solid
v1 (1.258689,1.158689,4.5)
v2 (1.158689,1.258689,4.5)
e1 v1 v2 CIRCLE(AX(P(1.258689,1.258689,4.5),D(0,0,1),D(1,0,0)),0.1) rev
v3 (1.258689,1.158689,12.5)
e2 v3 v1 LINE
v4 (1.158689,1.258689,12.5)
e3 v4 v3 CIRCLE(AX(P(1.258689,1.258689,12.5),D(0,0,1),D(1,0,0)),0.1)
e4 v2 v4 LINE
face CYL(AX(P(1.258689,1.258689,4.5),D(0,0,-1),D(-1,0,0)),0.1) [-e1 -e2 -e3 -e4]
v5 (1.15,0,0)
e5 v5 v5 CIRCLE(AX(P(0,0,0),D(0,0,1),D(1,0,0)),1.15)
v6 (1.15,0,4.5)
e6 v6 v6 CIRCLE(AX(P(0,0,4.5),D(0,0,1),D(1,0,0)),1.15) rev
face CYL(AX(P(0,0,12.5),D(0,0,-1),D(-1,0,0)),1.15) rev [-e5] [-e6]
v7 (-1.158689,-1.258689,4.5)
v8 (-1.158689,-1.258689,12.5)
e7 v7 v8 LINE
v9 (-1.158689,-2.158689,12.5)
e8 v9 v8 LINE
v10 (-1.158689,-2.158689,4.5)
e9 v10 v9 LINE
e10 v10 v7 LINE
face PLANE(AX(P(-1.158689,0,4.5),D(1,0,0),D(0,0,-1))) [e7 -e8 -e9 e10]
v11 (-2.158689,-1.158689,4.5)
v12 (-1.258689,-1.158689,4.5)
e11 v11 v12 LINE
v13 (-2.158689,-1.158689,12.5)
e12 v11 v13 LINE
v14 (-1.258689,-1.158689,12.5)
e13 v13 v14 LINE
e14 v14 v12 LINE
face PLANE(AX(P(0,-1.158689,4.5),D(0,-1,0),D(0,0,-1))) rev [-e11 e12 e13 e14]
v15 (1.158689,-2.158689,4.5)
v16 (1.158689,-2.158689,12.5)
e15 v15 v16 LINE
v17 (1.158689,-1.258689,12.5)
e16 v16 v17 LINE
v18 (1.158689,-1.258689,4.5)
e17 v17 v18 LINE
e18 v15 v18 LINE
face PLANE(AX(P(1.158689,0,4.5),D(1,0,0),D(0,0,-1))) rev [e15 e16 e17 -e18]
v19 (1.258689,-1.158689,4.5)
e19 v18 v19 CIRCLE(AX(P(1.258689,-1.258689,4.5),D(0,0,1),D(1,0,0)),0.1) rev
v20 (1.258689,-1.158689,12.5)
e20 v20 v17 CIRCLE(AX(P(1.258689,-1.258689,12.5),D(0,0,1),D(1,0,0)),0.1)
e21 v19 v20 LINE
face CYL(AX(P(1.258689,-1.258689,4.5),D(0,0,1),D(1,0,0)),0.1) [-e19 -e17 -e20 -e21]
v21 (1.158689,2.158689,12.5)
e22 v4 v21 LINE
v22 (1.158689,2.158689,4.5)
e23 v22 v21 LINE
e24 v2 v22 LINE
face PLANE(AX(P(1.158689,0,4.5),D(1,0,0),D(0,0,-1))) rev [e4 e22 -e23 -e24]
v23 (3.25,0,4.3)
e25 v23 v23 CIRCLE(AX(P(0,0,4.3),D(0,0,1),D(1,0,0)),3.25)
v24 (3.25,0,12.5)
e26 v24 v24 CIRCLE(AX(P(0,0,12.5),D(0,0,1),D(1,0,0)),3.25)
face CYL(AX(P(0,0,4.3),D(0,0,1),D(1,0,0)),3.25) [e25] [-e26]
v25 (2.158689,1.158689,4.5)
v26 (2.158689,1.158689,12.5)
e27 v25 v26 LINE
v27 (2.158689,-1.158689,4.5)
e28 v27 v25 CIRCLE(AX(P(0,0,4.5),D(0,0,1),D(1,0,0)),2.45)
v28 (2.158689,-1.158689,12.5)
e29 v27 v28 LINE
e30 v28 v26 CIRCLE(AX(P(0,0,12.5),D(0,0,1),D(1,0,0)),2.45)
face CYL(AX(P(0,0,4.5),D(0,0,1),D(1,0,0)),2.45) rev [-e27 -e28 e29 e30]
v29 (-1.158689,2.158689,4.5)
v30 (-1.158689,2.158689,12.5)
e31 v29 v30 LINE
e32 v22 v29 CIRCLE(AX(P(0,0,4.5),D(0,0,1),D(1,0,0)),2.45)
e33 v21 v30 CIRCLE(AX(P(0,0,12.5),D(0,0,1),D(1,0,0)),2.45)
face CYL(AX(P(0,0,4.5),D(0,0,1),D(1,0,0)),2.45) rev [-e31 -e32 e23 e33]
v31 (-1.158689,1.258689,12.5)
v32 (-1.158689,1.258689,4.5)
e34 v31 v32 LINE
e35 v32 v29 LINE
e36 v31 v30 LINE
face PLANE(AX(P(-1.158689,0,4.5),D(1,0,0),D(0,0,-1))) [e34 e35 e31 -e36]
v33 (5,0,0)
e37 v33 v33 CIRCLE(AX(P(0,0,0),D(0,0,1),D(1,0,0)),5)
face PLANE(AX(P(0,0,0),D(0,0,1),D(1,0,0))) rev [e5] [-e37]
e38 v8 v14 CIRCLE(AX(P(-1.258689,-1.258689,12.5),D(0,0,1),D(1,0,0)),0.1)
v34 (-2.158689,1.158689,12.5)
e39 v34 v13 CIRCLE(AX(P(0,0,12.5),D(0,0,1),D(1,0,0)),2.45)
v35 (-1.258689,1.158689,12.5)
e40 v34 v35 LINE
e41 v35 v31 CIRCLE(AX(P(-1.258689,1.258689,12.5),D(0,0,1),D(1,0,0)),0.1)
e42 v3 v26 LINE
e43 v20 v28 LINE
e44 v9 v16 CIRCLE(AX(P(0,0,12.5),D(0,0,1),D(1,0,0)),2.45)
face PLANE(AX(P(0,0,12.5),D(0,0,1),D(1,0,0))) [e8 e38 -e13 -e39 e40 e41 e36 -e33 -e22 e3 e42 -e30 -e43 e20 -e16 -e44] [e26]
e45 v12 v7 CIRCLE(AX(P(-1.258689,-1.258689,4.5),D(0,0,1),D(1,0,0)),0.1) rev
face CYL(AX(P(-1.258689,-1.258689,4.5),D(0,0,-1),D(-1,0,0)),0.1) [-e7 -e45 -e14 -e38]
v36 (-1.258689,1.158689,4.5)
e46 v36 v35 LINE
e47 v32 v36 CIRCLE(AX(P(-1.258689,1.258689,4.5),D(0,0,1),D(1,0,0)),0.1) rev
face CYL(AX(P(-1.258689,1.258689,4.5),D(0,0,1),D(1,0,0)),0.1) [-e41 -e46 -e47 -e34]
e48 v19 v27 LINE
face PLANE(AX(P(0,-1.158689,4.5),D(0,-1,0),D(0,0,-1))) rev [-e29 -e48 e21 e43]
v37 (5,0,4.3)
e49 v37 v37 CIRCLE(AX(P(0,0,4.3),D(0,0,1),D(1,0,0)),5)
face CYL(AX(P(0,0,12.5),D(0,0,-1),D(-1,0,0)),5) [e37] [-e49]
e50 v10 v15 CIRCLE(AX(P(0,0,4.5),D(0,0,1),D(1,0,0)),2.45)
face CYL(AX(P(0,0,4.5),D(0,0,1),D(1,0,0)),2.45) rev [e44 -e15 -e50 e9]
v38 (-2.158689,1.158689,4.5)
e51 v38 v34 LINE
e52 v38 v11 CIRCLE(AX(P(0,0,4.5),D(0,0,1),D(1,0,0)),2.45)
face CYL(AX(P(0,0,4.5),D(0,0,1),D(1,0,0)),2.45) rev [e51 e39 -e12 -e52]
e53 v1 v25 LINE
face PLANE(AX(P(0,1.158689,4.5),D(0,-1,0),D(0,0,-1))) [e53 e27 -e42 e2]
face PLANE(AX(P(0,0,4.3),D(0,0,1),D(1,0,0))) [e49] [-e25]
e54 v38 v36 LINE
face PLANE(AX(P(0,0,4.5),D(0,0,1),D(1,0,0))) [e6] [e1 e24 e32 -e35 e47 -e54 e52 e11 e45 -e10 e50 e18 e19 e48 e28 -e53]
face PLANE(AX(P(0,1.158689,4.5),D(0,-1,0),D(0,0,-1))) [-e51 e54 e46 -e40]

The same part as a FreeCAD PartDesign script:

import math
import FreeCAD as App
import Part
import Sketcher

V = App.Vector
Q = App.Units.Quantity


def edges_at(feature, points):
    """Names of the edges that pass closest to the given points."""
    edges = feature.Shape.Edges
    near = lambda p: min(range(len(edges)), key=lambda i: edges[i].distToShape(Part.Vertex(*p))[0])
    return sorted({f"Edge{near(p) + 1}" for p in points})

doc = App.newDocument("Part")
body = doc.addObject("PartDesign::Body", "Body")

sketch1 = body.newObject("Sketcher::SketchObject", "Sketch")
sketch1.AttachmentSupport = (doc.getObject("XY_Plane"), [""])
sketch1.MapMode = "FlatFace"
sketch1.addGeometry(Part.Circle(V(0, 0, 0), V(0, 0, 1), 5), False)
sketch1.addGeometry(Part.Circle(V(0, 0, 0), V(0, 0, 1), 1.15), False)
sketch1.addConstraint(Sketcher.Constraint("Coincident", 0, 3, -1, 1))
sketch1.addConstraint(Sketcher.Constraint("Coincident", 1, 3, -1, 1))
sketch1.addConstraint(Sketcher.Constraint("Diameter", 0, Q("10 mm")))
sketch1.addConstraint(Sketcher.Constraint("Diameter", 1, Q("2.3 mm")))
pad1 = body.newObject("PartDesign::Pad", "Pad")
pad1.Profile = sketch1
pad1.Length = 12.5

sketch2 = body.newObject("Sketcher::SketchObject", "Sketch001")
sketch2.AttachmentSupport = (doc.getObject("XY_Plane"), [""])
sketch2.MapMode = "FlatFace"
sketch2.AttachmentOffset = App.Placement(V(0, 0, 4.3), App.Rotation())
sketch2.addGeometry(Part.Circle(V(0, 0, 0), V(0, 0, 1), 5), False)
sketch2.addGeometry(Part.Circle(V(0, 0, 0), V(0, 0, 1), 3.25), False)
sketch2.addConstraint(Sketcher.Constraint("Coincident", 0, 3, -1, 1))
sketch2.addConstraint(Sketcher.Constraint("Coincident", 1, 3, -1, 1))
sketch2.addConstraint(Sketcher.Constraint("Diameter", 0, Q("10 mm")))
sketch2.addConstraint(Sketcher.Constraint("Diameter", 1, Q("6.5 mm")))
pocket1 = body.newObject("PartDesign::Pocket", "Pocket")
pocket1.Profile = sketch2
pocket1.Length = 8.2
pocket1.Reversed = True

sketch3 = body.newObject("Sketcher::SketchObject", "Sketch002")
sketch3.AttachmentSupport = (doc.getObject("XY_Plane"), [""])
sketch3.MapMode = "FlatFace"
sketch3.AttachmentOffset = App.Placement(V(0, 0, 4.5), App.Rotation())
sketch3.addGeometry(Part.LineSegment(V(2.158689, 1.158689, 0), V(1.158689, 1.158689, 0)), False)
sketch3.addGeometry(Part.LineSegment(V(1.158689, 1.158689, 0), V(1.158689, 2.158689, 0)), False)
sketch3.addGeometry(Part.ArcOfCircle(Part.Circle(V(0, 0, 0), V(0, 0, 1), 2.45), math.radians(61.775057), math.radians(118.224943)), False)
sketch3.addGeometry(Part.LineSegment(V(-1.158689, 2.158689, 0), V(-1.158689, 1.158689, 0)), False)
sketch3.addGeometry(Part.LineSegment(V(-1.158689, 1.158689, 0), V(-2.158689, 1.158689, 0)), False)
sketch3.addGeometry(Part.ArcOfCircle(Part.Circle(V(0, 0, 0), V(0, 0, 1), 2.45), math.radians(151.775057), math.radians(208.224943)), False)
sketch3.addGeometry(Part.LineSegment(V(-2.158689, -1.158689, 0), V(-1.158689, -1.158689, 0)), False)
sketch3.addGeometry(Part.LineSegment(V(-1.158689, -1.158689, 0), V(-1.158689, -2.158689, 0)), False)
sketch3.addGeometry(Part.ArcOfCircle(Part.Circle(V(0, 0, 0), V(0, 0, 1), 2.45), math.radians(-118.224943), math.radians(-61.775057)), False)
sketch3.addGeometry(Part.LineSegment(V(1.158689, -2.158689, 0), V(1.158689, -1.158689, 0)), False)
sketch3.addGeometry(Part.LineSegment(V(1.158689, -1.158689, 0), V(2.158689, -1.158689, 0)), False)
sketch3.addGeometry(Part.ArcOfCircle(Part.Circle(V(0, 0, 0), V(0, 0, 1), 2.45), math.radians(-28.224943), math.radians(0)), False)
sketch3.addGeometry(Part.ArcOfCircle(Part.Circle(V(0, 0, 0), V(0, 0, 1), 2.45), math.radians(0), math.radians(28.224943)), False)
sketch3.addGeometry(Part.Circle(V(0, 0, 0), V(0, 0, 1), 1.15), False)
sketch3.addConstraint(Sketcher.Constraint("Coincident", 0, 2, 1, 1))
sketch3.addConstraint(Sketcher.Constraint("Coincident", 1, 2, 2, 1))
sketch3.addConstraint(Sketcher.Constraint("Coincident", 2, 2, 3, 1))
sketch3.addConstraint(Sketcher.Constraint("Coincident", 3, 2, 4, 1))
sketch3.addConstraint(Sketcher.Constraint("Coincident", 4, 2, 5, 1))
sketch3.addConstraint(Sketcher.Constraint("Coincident", 5, 2, 6, 1))
sketch3.addConstraint(Sketcher.Constraint("Coincident", 6, 2, 7, 1))
sketch3.addConstraint(Sketcher.Constraint("Coincident", 7, 2, 8, 1))
sketch3.addConstraint(Sketcher.Constraint("Coincident", 8, 2, 9, 1))
sketch3.addConstraint(Sketcher.Constraint("Coincident", 9, 2, 10, 1))
sketch3.addConstraint(Sketcher.Constraint("Coincident", 10, 2, 11, 1))
sketch3.addConstraint(Sketcher.Constraint("Tangent", 11, 2, 12, 1))
sketch3.addConstraint(Sketcher.Constraint("Coincident", 12, 2, 0, 1))
sketch3.addConstraint(Sketcher.Constraint("Horizontal", 0))
sketch3.addConstraint(Sketcher.Constraint("Vertical", 1))
sketch3.addConstraint(Sketcher.Constraint("Vertical", 3))
sketch3.addConstraint(Sketcher.Constraint("Horizontal", 4))
sketch3.addConstraint(Sketcher.Constraint("Horizontal", 6))
sketch3.addConstraint(Sketcher.Constraint("Vertical", 7))
sketch3.addConstraint(Sketcher.Constraint("Vertical", 9))
sketch3.addConstraint(Sketcher.Constraint("Horizontal", 10))
sketch3.addConstraint(Sketcher.Constraint("Coincident", 2, 3, -1, 1))
sketch3.addConstraint(Sketcher.Constraint("Coincident", 5, 3, -1, 1))
sketch3.addConstraint(Sketcher.Constraint("Coincident", 8, 3, -1, 1))
sketch3.addConstraint(Sketcher.Constraint("Coincident", 11, 3, -1, 1))
sketch3.addConstraint(Sketcher.Constraint("Coincident", 13, 3, -1, 1))
sketch3.addConstraint(Sketcher.Constraint("Equal", 2, 5))
sketch3.addConstraint(Sketcher.Constraint("Equal", 5, 8))
sketch3.addConstraint(Sketcher.Constraint("Equal", 8, 11))
sketch3.addConstraint(Sketcher.Constraint("Equal", 11, 12))
sketch3.addConstraint(Sketcher.Constraint("Symmetric", 0, 2, 6, 2, -1, 1))
sketch3.addConstraint(Sketcher.Constraint("Symmetric", 3, 2, 9, 2, -1, 1))
sketch3.addConstraint(Sketcher.Constraint("Symmetric", 0, 2, 3, 2, -2))
sketch3.addConstraint(Sketcher.Constraint("PointOnObject", 11, 2, -1))
sketch3.addConstraint(Sketcher.Constraint("Equal", 10, 1))
sketch3.addConstraint(Sketcher.Constraint("Diameter", 13, Q("2.3 mm")))
sketch3.addConstraint(Sketcher.Constraint("DistanceX", 0, 2, 0, 1, Q("1 mm")))
sketch3.addConstraint(Sketcher.Constraint("Radius", 2, Q("2.45 mm")))
pocket2 = body.newObject("PartDesign::Pocket", "Pocket001")
pocket2.Profile = sketch3
pocket2.Length = 8
pocket2.Reversed = True
doc.recompute()

fillet = body.newObject("PartDesign::Fillet", "Fillet")
fillet.Base = (pocket2, edges_at(pocket2, [
    (1.159, 1.159, 8.5),
    (1.159, -1.159, 8.5),
    (-1.159, -1.159, 8.5),
    (-1.159, 1.159, 8.5),
]))
fillet.Radius = 0.1

doc.recompute()
